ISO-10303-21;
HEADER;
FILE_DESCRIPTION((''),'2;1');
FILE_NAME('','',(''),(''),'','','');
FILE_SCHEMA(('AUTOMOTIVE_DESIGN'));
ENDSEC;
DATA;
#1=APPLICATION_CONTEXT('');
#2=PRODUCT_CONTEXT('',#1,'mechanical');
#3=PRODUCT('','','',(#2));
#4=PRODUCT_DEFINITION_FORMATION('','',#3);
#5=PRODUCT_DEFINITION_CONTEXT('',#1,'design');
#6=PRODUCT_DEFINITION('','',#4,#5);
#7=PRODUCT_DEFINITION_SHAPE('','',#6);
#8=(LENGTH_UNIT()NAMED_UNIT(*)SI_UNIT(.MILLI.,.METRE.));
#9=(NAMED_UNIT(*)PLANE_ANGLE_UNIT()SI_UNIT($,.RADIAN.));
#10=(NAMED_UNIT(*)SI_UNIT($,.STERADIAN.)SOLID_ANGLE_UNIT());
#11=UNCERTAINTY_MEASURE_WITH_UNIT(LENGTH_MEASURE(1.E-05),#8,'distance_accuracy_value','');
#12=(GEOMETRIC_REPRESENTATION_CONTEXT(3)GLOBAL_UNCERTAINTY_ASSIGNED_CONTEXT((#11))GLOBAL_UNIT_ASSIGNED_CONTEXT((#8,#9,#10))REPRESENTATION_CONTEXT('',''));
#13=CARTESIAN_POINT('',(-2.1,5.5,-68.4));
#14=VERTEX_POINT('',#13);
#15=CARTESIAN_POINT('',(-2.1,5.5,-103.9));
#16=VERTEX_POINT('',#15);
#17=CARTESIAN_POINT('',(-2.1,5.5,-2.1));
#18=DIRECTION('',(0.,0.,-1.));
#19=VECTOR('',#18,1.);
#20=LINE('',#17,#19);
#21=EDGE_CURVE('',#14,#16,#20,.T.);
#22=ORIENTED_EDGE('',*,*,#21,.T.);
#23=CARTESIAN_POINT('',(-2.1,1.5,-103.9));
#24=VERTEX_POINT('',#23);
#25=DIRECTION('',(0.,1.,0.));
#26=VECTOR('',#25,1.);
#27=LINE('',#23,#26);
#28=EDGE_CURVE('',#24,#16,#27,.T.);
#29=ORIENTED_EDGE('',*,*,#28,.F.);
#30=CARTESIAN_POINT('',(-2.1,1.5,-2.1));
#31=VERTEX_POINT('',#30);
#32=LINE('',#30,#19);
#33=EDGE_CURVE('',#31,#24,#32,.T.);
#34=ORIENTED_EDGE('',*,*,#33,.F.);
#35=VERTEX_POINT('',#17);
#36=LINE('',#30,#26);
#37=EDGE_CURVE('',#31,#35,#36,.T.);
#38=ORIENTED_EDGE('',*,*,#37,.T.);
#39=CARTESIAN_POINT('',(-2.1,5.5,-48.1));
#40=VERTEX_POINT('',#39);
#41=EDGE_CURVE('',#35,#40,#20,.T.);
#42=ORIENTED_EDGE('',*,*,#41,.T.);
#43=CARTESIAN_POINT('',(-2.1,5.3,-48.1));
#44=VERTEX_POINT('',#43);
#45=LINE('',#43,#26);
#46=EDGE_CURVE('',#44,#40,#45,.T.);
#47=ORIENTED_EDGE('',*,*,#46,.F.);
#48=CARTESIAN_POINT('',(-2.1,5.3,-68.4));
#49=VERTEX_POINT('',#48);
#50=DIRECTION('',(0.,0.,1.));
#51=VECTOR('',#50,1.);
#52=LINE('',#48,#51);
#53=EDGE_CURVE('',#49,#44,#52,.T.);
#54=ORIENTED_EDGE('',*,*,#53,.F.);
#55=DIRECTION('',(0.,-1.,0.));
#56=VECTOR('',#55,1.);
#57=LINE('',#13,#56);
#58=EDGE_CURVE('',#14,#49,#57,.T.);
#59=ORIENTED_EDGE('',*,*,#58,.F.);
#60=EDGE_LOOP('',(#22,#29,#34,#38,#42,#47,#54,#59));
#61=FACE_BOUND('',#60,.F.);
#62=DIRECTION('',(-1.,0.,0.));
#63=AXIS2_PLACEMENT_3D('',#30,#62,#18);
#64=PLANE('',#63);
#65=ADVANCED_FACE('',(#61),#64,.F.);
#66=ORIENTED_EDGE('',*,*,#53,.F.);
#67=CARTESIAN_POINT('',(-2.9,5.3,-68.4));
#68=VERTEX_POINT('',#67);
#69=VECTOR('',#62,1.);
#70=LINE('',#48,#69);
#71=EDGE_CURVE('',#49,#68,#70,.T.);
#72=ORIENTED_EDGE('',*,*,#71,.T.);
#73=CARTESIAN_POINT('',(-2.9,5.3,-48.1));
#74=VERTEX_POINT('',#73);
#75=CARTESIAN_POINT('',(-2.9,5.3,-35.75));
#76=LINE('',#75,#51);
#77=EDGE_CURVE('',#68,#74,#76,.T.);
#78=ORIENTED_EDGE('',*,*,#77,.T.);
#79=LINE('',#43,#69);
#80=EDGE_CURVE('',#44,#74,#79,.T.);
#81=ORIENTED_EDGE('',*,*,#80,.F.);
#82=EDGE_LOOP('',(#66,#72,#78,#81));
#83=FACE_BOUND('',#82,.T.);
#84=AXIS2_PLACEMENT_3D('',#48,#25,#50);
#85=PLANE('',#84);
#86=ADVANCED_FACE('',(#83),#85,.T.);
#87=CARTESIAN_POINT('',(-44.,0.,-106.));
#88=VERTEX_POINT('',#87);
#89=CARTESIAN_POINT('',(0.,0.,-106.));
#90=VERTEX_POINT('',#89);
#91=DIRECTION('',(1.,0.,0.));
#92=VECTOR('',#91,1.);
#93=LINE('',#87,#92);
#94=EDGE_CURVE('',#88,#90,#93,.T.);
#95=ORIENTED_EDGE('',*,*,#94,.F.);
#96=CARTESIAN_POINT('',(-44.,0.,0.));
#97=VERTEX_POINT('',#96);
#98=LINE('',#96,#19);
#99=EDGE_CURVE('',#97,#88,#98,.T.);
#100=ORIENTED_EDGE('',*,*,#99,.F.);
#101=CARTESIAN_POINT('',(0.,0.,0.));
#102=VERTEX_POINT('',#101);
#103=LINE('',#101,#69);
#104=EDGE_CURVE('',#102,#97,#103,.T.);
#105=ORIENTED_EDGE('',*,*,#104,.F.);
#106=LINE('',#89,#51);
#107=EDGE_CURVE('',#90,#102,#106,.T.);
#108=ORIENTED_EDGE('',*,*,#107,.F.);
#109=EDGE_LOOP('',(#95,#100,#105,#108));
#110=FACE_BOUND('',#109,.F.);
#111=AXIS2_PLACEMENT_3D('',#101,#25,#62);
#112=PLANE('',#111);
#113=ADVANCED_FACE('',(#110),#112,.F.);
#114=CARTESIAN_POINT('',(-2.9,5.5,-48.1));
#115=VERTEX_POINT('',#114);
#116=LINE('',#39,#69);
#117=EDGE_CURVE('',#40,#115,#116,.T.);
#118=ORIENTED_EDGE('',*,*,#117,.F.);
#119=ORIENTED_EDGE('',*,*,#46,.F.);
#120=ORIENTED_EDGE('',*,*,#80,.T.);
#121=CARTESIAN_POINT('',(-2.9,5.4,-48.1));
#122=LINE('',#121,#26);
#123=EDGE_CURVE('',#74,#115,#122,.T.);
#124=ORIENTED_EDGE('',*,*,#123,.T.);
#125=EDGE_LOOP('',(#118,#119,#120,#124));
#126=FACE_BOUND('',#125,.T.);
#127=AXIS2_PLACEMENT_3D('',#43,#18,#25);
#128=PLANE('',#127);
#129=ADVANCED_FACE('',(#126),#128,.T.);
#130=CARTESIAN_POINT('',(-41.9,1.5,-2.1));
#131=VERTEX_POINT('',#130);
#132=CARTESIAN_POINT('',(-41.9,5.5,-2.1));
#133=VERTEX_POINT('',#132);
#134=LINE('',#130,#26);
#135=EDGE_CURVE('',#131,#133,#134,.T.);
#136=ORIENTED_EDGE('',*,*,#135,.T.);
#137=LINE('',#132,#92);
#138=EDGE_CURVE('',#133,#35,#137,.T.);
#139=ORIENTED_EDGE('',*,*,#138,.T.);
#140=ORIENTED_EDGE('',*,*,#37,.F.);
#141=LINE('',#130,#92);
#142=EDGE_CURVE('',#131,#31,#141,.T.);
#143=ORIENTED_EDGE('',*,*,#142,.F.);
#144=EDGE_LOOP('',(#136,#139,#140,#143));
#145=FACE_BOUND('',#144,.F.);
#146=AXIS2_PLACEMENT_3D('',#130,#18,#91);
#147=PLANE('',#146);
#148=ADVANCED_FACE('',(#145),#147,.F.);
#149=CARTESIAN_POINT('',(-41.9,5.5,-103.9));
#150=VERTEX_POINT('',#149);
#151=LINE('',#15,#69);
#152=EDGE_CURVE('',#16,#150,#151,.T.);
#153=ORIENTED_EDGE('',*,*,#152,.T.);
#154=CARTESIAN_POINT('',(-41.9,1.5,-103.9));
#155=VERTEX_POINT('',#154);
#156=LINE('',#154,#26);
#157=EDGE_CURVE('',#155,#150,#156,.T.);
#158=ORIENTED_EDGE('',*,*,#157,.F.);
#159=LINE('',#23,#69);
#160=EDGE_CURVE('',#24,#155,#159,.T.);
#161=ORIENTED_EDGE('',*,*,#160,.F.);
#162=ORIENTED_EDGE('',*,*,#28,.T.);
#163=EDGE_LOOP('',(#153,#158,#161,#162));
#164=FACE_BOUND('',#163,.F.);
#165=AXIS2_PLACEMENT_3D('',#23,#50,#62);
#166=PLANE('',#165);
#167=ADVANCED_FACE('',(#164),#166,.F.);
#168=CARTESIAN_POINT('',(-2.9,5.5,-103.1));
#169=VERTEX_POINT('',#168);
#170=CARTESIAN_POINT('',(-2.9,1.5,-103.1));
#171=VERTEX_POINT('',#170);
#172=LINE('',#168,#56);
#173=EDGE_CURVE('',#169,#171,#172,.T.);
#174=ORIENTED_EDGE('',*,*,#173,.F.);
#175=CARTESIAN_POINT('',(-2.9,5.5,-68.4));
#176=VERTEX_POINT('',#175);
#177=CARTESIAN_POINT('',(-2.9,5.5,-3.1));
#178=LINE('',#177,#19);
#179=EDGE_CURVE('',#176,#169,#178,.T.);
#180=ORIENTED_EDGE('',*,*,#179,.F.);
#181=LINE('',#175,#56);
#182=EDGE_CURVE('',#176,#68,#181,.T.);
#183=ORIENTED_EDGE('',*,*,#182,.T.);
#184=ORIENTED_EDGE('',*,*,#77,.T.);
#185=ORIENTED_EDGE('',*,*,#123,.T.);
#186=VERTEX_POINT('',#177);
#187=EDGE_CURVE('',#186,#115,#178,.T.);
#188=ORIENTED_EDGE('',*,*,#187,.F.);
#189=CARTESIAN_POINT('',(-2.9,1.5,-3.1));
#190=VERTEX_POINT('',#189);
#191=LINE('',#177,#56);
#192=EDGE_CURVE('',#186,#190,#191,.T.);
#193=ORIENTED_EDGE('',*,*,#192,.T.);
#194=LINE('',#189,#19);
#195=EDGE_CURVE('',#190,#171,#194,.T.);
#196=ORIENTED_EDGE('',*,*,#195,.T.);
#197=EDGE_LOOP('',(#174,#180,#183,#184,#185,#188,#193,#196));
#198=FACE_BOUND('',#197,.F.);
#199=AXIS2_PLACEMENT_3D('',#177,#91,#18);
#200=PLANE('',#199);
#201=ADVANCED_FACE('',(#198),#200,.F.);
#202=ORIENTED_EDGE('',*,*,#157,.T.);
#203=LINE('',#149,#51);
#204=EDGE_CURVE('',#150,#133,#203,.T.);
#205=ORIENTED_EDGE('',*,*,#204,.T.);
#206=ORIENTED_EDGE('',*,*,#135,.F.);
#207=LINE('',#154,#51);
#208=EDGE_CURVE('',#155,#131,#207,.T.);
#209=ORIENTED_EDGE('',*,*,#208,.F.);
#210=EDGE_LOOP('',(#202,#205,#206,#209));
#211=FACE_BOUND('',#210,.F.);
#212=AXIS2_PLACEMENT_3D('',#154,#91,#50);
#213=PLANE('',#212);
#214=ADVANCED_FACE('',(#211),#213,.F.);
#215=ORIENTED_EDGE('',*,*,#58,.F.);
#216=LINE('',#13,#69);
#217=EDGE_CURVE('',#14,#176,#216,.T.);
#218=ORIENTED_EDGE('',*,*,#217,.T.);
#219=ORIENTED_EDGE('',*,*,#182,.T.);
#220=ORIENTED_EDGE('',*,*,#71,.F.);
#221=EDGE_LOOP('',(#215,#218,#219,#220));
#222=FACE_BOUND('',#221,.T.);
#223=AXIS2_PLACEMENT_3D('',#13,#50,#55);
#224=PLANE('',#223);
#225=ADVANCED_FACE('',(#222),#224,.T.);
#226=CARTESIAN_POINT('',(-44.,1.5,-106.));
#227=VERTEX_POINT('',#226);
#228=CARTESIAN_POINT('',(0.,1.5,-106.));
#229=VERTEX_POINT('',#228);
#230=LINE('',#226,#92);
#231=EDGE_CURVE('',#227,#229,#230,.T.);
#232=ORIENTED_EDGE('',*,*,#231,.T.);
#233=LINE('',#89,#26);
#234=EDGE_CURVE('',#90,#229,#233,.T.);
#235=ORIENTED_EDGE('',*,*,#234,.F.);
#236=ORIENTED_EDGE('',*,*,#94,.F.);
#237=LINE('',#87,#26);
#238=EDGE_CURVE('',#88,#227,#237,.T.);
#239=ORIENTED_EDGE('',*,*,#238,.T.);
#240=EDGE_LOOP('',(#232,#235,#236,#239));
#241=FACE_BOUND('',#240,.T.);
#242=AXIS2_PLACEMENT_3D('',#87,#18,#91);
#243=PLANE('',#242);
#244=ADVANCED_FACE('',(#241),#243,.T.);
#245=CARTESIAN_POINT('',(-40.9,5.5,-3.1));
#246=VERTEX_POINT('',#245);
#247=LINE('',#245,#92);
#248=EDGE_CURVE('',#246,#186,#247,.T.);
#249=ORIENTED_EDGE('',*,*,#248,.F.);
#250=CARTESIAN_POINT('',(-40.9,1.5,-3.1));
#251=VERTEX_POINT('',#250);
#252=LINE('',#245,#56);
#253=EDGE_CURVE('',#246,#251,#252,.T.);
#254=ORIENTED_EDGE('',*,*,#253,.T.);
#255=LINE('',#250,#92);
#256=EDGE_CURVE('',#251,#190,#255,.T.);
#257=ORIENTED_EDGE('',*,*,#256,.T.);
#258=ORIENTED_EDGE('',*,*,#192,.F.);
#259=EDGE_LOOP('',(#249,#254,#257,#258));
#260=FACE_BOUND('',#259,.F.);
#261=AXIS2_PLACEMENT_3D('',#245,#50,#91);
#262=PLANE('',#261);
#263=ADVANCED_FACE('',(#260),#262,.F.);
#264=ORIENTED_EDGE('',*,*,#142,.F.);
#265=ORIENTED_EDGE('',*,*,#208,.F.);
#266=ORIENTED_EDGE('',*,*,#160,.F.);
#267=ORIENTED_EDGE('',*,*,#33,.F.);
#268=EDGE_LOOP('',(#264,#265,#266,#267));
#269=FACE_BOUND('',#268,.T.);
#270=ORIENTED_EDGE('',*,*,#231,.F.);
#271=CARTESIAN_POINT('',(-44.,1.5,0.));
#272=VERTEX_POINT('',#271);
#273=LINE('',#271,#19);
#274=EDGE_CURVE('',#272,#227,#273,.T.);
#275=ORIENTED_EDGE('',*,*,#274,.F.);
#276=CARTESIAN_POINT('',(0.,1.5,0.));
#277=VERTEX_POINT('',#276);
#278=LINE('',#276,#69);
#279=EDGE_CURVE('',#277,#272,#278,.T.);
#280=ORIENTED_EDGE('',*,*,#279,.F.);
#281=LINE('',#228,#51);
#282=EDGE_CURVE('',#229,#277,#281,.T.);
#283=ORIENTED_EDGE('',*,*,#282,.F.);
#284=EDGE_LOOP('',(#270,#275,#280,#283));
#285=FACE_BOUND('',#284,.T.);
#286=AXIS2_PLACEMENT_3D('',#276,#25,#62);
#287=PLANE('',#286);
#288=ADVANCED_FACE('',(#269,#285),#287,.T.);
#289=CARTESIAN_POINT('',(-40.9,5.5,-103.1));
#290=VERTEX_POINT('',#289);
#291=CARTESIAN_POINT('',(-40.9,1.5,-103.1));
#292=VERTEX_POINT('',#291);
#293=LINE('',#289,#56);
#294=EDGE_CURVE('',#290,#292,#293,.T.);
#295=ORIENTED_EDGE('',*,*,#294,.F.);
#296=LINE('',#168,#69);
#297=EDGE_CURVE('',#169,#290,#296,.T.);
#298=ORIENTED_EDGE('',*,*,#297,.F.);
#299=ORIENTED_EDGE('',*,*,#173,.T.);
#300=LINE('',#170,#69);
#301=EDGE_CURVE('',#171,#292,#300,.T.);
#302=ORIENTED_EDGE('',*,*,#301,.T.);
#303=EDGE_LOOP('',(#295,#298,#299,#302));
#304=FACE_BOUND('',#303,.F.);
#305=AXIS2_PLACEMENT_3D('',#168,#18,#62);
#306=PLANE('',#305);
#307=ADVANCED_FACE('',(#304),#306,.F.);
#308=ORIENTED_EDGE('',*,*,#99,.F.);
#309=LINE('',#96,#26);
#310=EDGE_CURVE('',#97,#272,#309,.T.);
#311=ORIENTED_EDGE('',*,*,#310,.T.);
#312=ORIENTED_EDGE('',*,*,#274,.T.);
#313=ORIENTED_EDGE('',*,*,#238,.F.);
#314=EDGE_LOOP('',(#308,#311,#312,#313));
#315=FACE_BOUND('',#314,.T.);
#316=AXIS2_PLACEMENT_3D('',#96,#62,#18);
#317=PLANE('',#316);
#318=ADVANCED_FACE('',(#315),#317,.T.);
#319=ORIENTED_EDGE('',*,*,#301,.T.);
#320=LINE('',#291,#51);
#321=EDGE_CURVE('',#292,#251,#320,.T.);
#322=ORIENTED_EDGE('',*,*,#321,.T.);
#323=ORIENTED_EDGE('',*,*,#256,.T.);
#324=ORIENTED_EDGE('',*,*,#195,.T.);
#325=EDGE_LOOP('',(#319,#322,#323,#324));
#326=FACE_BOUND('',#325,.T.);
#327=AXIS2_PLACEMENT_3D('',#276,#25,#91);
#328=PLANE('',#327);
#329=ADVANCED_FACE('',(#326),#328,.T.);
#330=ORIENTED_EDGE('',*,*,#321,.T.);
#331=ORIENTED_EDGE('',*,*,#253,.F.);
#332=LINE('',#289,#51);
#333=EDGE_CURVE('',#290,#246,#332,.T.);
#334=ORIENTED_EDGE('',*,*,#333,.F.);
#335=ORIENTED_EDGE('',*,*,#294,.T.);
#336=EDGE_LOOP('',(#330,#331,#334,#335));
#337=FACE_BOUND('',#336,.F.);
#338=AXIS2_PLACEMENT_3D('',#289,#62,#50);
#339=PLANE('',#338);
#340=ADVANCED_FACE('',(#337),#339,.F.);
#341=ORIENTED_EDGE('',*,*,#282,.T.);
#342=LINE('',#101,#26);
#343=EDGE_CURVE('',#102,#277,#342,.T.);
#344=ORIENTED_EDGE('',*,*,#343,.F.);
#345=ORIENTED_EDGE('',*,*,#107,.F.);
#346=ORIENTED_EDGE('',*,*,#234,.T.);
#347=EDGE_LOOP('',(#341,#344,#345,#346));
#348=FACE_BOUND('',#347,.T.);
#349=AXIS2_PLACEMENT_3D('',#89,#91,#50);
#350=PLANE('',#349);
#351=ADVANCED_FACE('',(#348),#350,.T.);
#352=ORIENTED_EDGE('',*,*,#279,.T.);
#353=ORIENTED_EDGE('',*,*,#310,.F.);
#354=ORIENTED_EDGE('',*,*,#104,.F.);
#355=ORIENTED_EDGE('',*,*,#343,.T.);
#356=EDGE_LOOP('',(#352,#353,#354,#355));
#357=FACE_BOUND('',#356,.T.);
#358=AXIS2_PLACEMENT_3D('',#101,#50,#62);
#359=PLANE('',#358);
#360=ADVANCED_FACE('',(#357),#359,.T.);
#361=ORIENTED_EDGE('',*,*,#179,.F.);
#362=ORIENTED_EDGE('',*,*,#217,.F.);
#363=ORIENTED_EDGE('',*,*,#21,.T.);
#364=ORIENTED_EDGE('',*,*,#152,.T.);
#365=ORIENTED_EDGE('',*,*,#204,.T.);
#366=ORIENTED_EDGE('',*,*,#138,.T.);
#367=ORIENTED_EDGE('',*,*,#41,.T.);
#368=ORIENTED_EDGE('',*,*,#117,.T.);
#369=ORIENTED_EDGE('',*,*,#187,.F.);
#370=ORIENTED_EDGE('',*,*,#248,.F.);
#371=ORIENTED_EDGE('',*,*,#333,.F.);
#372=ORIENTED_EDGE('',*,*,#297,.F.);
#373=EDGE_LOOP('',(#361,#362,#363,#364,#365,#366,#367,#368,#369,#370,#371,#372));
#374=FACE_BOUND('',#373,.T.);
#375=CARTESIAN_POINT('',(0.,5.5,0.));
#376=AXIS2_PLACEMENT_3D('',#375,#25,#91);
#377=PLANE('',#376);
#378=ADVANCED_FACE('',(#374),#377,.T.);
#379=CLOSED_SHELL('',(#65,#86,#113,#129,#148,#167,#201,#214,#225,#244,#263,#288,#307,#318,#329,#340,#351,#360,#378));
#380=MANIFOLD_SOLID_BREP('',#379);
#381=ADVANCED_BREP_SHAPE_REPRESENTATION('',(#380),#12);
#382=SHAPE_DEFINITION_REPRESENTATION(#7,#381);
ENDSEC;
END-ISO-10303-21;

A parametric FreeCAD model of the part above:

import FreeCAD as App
import Part
import Sketcher

V = App.Vector

doc = App.newDocument("Part")
body = doc.addObject("PartDesign::Body", "Body")

# Sketch on XZ plane
sketch1 = body.newObject("Sketcher::SketchObject", "Sketch")
sketch1.AttachmentSupport = (doc.getObject("XZ_Plane"), [""])
sketch1.MapMode = "FlatFace"
sketch1.addGeometry([
    Part.LineSegment(V(-44, 0, 0), V(0, 0, 0)),
    Part.LineSegment(V(0, 0, 0), V(0, -106, 0)),
    Part.LineSegment(V(0, -106, 0), V(-44, -106, 0)),
    Part.LineSegment(V(-44, -106, 0), V(-44, 0, 0)),
], False)
sketch1.addConstraint([
    Sketcher.Constraint("Coincident", 0, 2, 1, 1),
    Sketcher.Constraint("Coincident", 1, 2, 2, 1),
    Sketcher.Constraint("Coincident", 2, 2, 3, 1),
    Sketcher.Constraint("Coincident", 3, 2, 0, 1),
    Sketcher.Constraint("Horizontal", 0),
    Sketcher.Constraint("Vertical", 1),
    Sketcher.Constraint("Horizontal", 2),
    Sketcher.Constraint("Vertical", 3),
    Sketcher.Constraint("Coincident", 0, 2, -1, 1),
    Sketcher.Constraint("DistanceX", 0, 1, 0, 2, 44.0),
    Sketcher.Constraint("DistanceY", 1, 2, 1, 1, 106.0),
])
pad1 = body.newObject("PartDesign::Pad", "Pad")
pad1.Profile = sketch1
pad1.Length = 1.5
pad1.Reversed = True

# Sketch on XZ plane
sketch2 = body.newObject("Sketcher::SketchObject", "Sketch001")
sketch2.AttachmentSupport = (doc.getObject("XZ_Plane"), [""])
sketch2.MapMode = "FlatFace"
sketch2.AttachmentOffset = App.Placement(V(0, 0, -1.5), App.Rotation())
sketch2.addGeometry([
    Part.LineSegment(V(-41.9, -103.9, 0), V(-41.9, -2.1, 0)),
    Part.LineSegment(V(-41.9, -2.1, 0), V(-2.1, -2.1, 0)),
    Part.LineSegment(V(-2.1, -2.1, 0), V(-2.1, -103.9, 0)),
    Part.LineSegment(V(-2.1, -103.9, 0), V(-41.9, -103.9, 0)),
], False)
sketch2.addConstraint([
    Sketcher.Constraint("Coincident", 0, 2, 1, 1),
    Sketcher.Constraint("Coincident", 1, 2, 2, 1),
    Sketcher.Constraint("Coincident", 2, 2, 3, 1),
    Sketcher.Constraint("Coincident", 3, 2, 0, 1),
    Sketcher.Constraint("Vertical", 0),
    Sketcher.Constraint("Horizontal", 1),
    Sketcher.Constraint("Vertical", 2),
    Sketcher.Constraint("Horizontal", 3),
    Sketcher.Constraint("DistanceX", 1, 1, 1, 2, 39.8),
    Sketcher.Constraint("DistanceY", 0, 1, 0, 2, 101.8),
    Sketcher.Constraint("DistanceY", 0, 2, -1, 1, 2.1),
    Sketcher.Constraint("DistanceX", 1, 2, -1, 1, 2.1),
])
pad2 = body.newObject("PartDesign::Pad", "Pad001")
pad2.Profile = sketch2
pad2.Length = 4
pad2.Reversed = True

# Sketch on XZ plane
sketch3 = body.newObject("Sketcher::SketchObject", "Sketch002")
sketch3.AttachmentSupport = (doc.getObject("XZ_Plane"), [""])
sketch3.MapMode = "FlatFace"
sketch3.AttachmentOffset = App.Placement(V(0, 0, -5.5), App.Rotation())
sketch3.addGeometry([
    Part.LineSegment(V(-40.9, -103.1, 0), V(-40.9, -3.1, 0)),
    Part.LineSegment(V(-40.9, -3.1, 0), V(-2.9, -3.1, 0)),
    Part.LineSegment(V(-2.9, -3.1, 0), V(-2.9, -103.1, 0)),
    Part.LineSegment(V(-2.9, -103.1, 0), V(-40.9, -103.1, 0)),
], False)
sketch3.addConstraint([
    Sketcher.Constraint("Coincident", 0, 2, 1, 1),
    Sketcher.Constraint("Coincident", 1, 2, 2, 1),
    Sketcher.Constraint("Coincident", 2, 2, 3, 1),
    Sketcher.Constraint("Coincident", 3, 2, 0, 1),
    Sketcher.Constraint("Vertical", 0),
    Sketcher.Constraint("Horizontal", 1),
    Sketcher.Constraint("Vertical", 2),
    Sketcher.Constraint("Horizontal", 3),
    Sketcher.Constraint("DistanceX", 1, 1, 1, 2, 38.0),
    Sketcher.Constraint("DistanceY", 0, 1, 0, 2, 100.0),
    Sketcher.Constraint("DistanceX", 0, 2, -1, 1, 40.9),
    Sketcher.Constraint("DistanceY", 0, 2, -1, 1, 3.1),
])
pocket1 = body.newObject("PartDesign::Pocket", "Pocket")
pocket1.Profile = sketch3
pocket1.Length = 4
pocket1.Reversed = True

# Sketch on YZ plane
sketch4 = body.newObject("Sketcher::SketchObject", "Sketch003")
sketch4.AttachmentSupport = (doc.getObject("YZ_Plane"), [""])
sketch4.MapMode = "FlatFace"
sketch4.AttachmentOffset = App.Placement(V(0, 0, -2.1), App.Rotation())
sketch4.addGeometry([
    Part.LineSegment(V(5.3, -68.4, 0), V(5.5, -68.4, 0)),
    Part.LineSegment(V(5.5, -68.4, 0), V(5.5, -48.1, 0)),
    Part.LineSegment(V(5.5, -48.1, 0), V(5.3, -48.1, 0)),
    Part.LineSegment(V(5.3, -48.1, 0), V(5.3, -68.4, 0)),
], False)
sketch4.addConstraint([
    Sketcher.Constraint("Coincident", 0, 2, 1, 1),
    Sketcher.Constraint("Coincident", 1, 2, 2, 1),
    Sketcher.Constraint("Coincident", 2, 2, 3, 1),
    Sketcher.Constraint("Coincident", 3, 2, 0, 1),
    Sketcher.Constraint("Horizontal", 0),
    Sketcher.Constraint("Vertical", 1),
    Sketcher.Constraint("Horizontal", 2),
    Sketcher.Constraint("Vertical", 3),
    Sketcher.Constraint("DistanceX", 0, 1, 0, 2, 0.2),
    Sketcher.Constraint("DistanceY", 1, 1, 1, 2, 20.3),
    Sketcher.Constraint("DistanceX", -1, 1, 0, 2, 5.5),
    Sketcher.Constraint("DistanceY", 0, 2, -1, 1, 68.4),
])
pocket2 = body.newObject("PartDesign::Pocket", "Pocket001")
pocket2.Profile = sketch4
pocket2.Length = 2

doc.recompute()
